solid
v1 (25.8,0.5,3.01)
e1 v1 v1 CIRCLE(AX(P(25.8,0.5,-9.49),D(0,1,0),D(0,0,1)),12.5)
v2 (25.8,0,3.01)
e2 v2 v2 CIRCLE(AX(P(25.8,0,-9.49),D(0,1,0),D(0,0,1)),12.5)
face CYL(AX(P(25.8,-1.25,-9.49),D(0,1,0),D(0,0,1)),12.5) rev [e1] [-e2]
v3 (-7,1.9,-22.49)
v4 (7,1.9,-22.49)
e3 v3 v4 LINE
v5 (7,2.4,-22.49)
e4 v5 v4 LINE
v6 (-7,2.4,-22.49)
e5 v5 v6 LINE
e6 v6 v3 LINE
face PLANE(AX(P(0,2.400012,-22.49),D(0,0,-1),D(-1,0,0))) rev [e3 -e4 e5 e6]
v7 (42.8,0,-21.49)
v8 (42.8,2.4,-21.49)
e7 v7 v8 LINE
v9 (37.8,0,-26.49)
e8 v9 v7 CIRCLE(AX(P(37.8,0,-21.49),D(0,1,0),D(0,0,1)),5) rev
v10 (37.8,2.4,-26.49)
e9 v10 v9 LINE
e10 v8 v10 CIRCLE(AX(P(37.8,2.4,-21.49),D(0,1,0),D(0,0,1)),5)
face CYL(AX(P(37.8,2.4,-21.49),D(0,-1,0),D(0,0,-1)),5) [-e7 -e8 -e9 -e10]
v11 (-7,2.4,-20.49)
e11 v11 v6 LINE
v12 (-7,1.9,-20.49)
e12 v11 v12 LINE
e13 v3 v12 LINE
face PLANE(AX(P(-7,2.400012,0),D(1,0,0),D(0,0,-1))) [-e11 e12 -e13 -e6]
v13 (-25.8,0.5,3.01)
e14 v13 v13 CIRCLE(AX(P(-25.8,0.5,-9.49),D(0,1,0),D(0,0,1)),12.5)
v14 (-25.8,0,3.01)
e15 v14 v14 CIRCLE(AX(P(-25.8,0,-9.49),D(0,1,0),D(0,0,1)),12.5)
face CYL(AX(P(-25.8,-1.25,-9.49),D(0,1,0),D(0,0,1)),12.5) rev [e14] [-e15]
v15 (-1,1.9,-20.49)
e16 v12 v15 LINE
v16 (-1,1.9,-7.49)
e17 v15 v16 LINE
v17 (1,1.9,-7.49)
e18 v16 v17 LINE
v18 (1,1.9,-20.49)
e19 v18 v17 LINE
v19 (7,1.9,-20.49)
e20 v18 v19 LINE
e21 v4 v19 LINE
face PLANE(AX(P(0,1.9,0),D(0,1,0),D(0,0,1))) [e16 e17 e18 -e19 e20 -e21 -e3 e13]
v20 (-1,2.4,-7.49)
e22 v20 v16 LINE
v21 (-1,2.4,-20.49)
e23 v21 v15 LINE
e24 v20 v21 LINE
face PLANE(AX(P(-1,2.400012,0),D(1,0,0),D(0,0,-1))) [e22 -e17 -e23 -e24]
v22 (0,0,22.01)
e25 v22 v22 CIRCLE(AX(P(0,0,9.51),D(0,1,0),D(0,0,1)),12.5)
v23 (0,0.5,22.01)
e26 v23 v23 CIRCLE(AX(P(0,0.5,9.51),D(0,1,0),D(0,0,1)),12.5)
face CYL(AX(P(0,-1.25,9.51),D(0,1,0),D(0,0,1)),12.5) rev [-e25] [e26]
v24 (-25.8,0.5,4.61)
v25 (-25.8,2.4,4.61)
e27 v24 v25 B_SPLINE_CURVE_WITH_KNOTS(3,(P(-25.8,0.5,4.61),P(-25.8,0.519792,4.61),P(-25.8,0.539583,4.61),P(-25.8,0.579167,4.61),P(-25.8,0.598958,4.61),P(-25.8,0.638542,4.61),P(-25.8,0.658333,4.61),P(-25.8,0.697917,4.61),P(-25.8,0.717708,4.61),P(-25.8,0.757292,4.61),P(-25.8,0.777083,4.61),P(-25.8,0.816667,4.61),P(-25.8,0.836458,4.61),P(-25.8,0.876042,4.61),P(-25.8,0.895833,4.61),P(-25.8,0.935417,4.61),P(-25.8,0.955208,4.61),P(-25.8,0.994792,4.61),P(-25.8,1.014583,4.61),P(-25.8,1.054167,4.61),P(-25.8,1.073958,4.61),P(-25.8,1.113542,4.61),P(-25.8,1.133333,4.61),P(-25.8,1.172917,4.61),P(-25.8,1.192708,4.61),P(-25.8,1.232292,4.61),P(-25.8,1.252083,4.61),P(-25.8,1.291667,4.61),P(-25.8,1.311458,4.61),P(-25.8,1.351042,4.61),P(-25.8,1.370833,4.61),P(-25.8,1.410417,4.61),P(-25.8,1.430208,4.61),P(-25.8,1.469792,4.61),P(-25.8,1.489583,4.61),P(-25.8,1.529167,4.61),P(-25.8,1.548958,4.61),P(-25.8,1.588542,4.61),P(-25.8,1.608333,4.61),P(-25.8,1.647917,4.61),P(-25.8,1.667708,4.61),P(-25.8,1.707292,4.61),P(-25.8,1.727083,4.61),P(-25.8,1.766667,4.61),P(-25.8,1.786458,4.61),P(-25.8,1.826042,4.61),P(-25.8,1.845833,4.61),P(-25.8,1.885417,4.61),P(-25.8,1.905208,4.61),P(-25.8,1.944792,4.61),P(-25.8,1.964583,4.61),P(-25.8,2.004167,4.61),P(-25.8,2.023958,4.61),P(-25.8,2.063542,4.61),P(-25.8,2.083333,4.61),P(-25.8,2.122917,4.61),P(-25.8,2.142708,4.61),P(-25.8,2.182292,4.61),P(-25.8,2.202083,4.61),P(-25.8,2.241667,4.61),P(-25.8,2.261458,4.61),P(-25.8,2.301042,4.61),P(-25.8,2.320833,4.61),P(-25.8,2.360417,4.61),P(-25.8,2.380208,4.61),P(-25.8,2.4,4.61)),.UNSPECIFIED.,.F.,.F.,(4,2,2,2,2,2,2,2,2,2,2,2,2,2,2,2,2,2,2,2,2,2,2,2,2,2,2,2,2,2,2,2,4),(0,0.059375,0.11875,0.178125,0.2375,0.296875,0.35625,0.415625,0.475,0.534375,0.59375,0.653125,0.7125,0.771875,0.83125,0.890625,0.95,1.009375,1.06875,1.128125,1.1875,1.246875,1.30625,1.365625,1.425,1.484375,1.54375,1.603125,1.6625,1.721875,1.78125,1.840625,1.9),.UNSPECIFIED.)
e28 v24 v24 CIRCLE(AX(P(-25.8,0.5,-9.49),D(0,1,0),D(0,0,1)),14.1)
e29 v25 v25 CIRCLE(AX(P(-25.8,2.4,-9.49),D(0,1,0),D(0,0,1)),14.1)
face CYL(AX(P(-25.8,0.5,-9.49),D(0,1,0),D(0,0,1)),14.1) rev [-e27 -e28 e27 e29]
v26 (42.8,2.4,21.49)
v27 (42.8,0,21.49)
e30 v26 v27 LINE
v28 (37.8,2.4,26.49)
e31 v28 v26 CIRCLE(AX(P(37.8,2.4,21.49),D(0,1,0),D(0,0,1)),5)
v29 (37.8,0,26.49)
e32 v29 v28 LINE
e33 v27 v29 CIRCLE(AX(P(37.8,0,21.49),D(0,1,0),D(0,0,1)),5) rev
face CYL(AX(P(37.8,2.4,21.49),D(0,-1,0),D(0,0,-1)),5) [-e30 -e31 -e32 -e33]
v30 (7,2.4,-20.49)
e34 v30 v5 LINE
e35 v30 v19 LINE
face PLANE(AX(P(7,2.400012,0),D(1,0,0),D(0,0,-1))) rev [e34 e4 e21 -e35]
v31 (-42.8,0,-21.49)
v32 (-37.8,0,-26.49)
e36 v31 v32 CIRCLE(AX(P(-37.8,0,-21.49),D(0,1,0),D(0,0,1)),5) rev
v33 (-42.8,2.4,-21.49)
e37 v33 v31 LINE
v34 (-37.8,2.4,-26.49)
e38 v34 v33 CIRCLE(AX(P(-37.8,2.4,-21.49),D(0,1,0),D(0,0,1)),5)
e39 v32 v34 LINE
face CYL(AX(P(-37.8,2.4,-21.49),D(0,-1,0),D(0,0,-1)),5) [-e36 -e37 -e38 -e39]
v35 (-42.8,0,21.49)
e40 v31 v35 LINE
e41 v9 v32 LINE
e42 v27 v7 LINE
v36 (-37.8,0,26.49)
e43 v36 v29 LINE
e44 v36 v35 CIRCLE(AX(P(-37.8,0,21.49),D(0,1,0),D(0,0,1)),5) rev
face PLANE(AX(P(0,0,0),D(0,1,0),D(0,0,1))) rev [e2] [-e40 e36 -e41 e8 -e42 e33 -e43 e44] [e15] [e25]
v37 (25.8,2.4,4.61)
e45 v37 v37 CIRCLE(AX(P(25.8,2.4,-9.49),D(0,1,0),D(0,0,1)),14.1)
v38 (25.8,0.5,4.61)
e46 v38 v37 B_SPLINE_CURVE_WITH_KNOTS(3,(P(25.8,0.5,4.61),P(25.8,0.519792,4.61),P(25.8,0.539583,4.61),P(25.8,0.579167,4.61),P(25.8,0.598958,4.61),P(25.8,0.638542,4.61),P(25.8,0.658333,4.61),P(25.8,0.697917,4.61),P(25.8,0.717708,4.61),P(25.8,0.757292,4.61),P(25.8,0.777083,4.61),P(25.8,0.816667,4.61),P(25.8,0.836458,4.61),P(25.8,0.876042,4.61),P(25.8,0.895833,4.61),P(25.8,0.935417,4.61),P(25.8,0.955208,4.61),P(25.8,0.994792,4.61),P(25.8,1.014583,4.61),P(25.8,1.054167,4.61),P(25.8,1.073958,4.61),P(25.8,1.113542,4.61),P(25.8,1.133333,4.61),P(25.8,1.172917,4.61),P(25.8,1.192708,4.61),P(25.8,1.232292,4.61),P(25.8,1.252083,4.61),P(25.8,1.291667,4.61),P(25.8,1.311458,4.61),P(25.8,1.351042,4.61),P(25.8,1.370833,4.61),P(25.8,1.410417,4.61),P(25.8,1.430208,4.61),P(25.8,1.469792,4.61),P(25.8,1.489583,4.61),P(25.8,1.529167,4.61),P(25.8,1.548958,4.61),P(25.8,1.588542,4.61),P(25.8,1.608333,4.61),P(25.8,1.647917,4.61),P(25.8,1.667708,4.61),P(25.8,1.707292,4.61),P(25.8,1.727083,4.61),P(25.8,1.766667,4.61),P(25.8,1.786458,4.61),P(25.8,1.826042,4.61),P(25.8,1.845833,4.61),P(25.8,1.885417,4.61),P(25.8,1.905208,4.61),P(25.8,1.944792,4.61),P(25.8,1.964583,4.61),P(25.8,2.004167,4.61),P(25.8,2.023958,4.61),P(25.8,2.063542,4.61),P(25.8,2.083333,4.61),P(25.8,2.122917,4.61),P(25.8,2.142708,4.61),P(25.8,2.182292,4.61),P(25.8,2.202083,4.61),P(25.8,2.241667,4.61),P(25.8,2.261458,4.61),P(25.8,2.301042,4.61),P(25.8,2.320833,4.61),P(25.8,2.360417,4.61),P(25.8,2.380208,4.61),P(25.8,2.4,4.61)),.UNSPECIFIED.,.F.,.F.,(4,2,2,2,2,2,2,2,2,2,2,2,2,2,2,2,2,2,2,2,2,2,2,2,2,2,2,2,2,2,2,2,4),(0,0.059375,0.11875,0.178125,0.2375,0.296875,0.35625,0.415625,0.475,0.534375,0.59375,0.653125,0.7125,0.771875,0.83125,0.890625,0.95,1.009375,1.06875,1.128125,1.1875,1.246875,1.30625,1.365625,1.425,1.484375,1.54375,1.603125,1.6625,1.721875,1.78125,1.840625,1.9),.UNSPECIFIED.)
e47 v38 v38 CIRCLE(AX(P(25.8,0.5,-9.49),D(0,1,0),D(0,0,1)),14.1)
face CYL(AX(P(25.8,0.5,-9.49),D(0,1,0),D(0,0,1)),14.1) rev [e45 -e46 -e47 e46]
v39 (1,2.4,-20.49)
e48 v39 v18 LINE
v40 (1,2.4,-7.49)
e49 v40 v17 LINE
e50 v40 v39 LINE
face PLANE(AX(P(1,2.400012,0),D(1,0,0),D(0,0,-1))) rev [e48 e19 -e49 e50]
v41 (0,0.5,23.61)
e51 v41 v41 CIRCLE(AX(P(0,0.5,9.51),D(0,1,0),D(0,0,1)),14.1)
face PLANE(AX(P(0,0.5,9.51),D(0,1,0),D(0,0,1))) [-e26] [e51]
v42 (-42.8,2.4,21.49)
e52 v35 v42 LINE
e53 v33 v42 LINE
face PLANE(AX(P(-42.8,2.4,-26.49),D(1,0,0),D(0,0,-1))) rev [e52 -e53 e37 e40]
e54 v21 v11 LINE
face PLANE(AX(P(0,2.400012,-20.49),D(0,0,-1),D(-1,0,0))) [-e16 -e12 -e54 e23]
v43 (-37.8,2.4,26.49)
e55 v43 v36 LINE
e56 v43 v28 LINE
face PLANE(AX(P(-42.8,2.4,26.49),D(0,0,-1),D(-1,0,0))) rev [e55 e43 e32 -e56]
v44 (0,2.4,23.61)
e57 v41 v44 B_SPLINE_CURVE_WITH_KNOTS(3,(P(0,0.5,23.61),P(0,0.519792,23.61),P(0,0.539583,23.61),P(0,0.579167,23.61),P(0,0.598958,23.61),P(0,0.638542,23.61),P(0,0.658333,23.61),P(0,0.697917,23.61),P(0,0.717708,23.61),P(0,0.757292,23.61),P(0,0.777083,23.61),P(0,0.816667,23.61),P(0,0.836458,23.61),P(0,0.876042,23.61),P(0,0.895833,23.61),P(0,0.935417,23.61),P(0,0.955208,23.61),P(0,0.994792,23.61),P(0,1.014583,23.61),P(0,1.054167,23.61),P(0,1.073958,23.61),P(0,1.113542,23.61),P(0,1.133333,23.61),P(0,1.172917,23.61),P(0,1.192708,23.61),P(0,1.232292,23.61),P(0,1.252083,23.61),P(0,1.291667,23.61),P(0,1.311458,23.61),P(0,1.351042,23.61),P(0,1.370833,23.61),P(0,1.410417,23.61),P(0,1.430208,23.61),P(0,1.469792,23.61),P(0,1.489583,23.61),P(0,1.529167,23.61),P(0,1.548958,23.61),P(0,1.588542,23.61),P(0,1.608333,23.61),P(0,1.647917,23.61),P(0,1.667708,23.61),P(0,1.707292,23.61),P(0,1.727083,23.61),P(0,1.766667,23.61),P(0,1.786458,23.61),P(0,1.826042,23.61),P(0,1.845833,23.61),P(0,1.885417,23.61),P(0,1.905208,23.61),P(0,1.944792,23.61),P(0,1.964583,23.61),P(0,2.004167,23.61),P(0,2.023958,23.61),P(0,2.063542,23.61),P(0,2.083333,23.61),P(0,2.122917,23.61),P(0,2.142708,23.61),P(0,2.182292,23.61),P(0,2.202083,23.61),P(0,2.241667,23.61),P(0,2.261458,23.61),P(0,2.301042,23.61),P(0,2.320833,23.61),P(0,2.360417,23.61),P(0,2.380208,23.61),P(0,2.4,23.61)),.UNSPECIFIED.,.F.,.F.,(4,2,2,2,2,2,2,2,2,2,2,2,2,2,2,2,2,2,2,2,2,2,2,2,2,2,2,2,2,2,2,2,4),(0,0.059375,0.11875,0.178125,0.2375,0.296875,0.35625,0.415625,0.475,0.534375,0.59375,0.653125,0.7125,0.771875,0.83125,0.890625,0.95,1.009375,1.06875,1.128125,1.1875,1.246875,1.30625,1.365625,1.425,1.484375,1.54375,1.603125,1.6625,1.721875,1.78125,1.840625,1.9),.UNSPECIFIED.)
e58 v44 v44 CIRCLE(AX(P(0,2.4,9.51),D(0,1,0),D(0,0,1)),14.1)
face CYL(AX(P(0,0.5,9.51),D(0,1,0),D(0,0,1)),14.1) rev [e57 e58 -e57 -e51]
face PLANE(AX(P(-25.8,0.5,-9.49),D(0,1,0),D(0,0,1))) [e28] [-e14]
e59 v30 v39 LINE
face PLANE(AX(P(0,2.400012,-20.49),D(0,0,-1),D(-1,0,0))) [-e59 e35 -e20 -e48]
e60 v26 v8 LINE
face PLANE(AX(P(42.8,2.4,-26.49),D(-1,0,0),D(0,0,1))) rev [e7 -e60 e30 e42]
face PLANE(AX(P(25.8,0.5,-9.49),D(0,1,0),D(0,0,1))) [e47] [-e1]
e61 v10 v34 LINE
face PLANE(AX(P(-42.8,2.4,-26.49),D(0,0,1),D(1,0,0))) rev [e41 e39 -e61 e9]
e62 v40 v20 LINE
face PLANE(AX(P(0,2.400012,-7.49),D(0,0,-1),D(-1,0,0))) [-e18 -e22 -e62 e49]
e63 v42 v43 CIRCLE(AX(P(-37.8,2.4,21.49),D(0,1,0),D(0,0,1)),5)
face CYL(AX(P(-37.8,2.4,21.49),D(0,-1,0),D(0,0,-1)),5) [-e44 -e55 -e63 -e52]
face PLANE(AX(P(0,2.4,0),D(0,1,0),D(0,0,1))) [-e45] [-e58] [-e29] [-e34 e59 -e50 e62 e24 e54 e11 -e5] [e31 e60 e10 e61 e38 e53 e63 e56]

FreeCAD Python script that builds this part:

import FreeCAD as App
import Part
import Sketcher


def edges_at(feature, points):
    """Names of the edges that pass closest to the given points."""
    edges = feature.Shape.Edges
    near = lambda p: min(range(len(edges)), key=lambda i: edges[i].distToShape(Part.Vertex(*p))[0])
    return sorted({f"Edge{near(p) + 1}" for p in points})

doc = App.newDocument("Part")
body = doc.addObject("PartDesign::Body", "Body")

# Sketch on XZ plane
sketch1 = doc.addObject("Sketcher::SketchObject", "Sketch")
body.addObject(sketch1)
sketch1.AttachmentSupport = (doc.XZ_Plane, [""])
sketch1.MapMode = "FlatFace"
sketch1.addGeometry(Part.LineSegment(App.Vector(-43, -26, 0), App.Vector(-43, 26, 0)), False)
sketch1.addGeometry(Part.LineSegment(App.Vector(-43, 26, 0), App.Vector(43, 26, 0)), False)
sketch1.addGeometry(Part.LineSegment(App.Vector(43, 26, 0), App.Vector(43, -26, 0)), False)
sketch1.addGeometry(Part.LineSegment(App.Vector(43, -26, 0), App.Vector(-43, -26, 0)), False)
sketch1.addConstraint(Sketcher.Constraint("Coincident", 0, 2, 1, 1))
sketch1.addConstraint(Sketcher.Constraint("Coincident", 1, 2, 2, 1))
sketch1.addConstraint(Sketcher.Constraint("Coincident", 2, 2, 3, 1))
sketch1.addConstraint(Sketcher.Constraint("Coincident", 3, 2, 0, 1))
sketch1.addConstraint(Sketcher.Constraint("Vertical", 0))
sketch1.addConstraint(Sketcher.Constraint("Horizontal", 1))
sketch1.addConstraint(Sketcher.Constraint("Vertical", 2))
sketch1.addConstraint(Sketcher.Constraint("Horizontal", 3))
sketch1.addConstraint(Sketcher.Constraint("Symmetric", 0, 2, 2, 2, -1, 1))
sketch1.addConstraint(Sketcher.Constraint("DistanceX", 1, 1, 1, 2, 85.6))
sketch1.addConstraint(Sketcher.Constraint("DistanceY", 0, 1, 0, 2, 52.98))
pad1 = doc.addObject("PartDesign::Pad", "Pad")
body.addObject(pad1)
pad1.Profile = sketch1
pad1.Length = 2.4
pad1.Reversed = True

# Sketch on XZ plane
sketch2 = doc.addObject("Sketcher::SketchObject", "Sketch001")
body.addObject(sketch2)
sketch2.AttachmentSupport = (doc.XZ_Plane, [""])
sketch2.MapMode = "FlatFace"
sketch2.AttachmentOffset = App.Placement(App.Vector(0, 0, -2.4), App.Rotation())
sketch2.addGeometry(Part.Circle(App.Vector(-26, -9, 0), App.Vector(0, 0, 1), 14), False)
sketch2.addGeometry(Part.Circle(App.Vector(0, 10, 0), App.Vector(0, 0, 1), 14), False)
sketch2.addGeometry(Part.Circle(App.Vector(26, -9, 0), App.Vector(0, 0, 1), 14), False)
sketch2.addConstraint(Sketcher.Constraint("Equal", 0, 1))
sketch2.addConstraint(Sketcher.Constraint("Equal", 1, 2))
sketch2.addConstraint(Sketcher.Constraint("Symmetric", 0, 3, 2, 3, -2))
sketch2.addConstraint(Sketcher.Constraint("PointOnObject", 1, 3, -2))
sketch2.addConstraint(Sketcher.Constraint("Diameter", 0, 28.2))
sketch2.addConstraint(Sketcher.Constraint("DistanceY", 0, 3, 1, 3, 19.0))
sketch2.addConstraint(Sketcher.Constraint("DistanceX", 0, 3, -1, 1, 25.8))
sketch2.addConstraint(Sketcher.Constraint("DistanceY", 0, 3, -1, 1, 9.49))
pocket1 = doc.addObject("PartDesign::Pocket", "Pocket")
body.addObject(pocket1)
pocket1.Profile = sketch2
pocket1.Length = 1.9
pocket1.Reversed = True

# Sketch on XZ plane
sketch3 = doc.addObject("Sketcher::SketchObject", "Sketch002")
body.addObject(sketch3)
sketch3.AttachmentSupport = (doc.XZ_Plane, [""])
sketch3.MapMode = "FlatFace"
sketch3.AttachmentOffset = App.Placement(App.Vector(0, 0, -0.5), App.Rotation())
sketch3.addGeometry(Part.Circle(App.Vector(-26, -9, 0), App.Vector(0, 0, 1), 12), False)
sketch3.addGeometry(Part.Circle(App.Vector(0, 10, 0), App.Vector(0, 0, 1), 12), False)
sketch3.addGeometry(Part.Circle(App.Vector(26, -9, 0), App.Vector(0, 0, 1), 12), False)
sketch3.addConstraint(Sketcher.Constraint("Equal", 0, 1))
sketch3.addConstraint(Sketcher.Constraint("Equal", 1, 2))
sketch3.addConstraint(Sketcher.Constraint("Symmetric", 0, 3, 2, 3, -2))
sketch3.addConstraint(Sketcher.Constraint("PointOnObject", 1, 3, -2))
sketch3.addConstraint(Sketcher.Constraint("Diameter", 0, 25.0))
sketch3.addConstraint(Sketcher.Constraint("DistanceY", 0, 3, 1, 3, 19.0))
sketch3.addConstraint(Sketcher.Constraint("DistanceX", 0, 3, -1, 1, 25.8))
sketch3.addConstraint(Sketcher.Constraint("DistanceY", 0, 3, -1, 1, 9.49))
pocket2 = doc.addObject("PartDesign::Pocket", "Pocket001")
body.addObject(pocket2)
pocket2.Profile = sketch3
pocket2.Length = 1.75
pocket2.Reversed = True
doc.recompute()

fillet = doc.addObject("PartDesign::Fillet", "Fillet")
body.addObject(fillet)
fillet.Base = (pocket2, edges_at(pocket2, [
    (42.8, 1.2, 26.49),
    (-42.8, 1.2, 26.49),
    (-42.8, 1.2, -26.49),
    (42.8, 1.2, -26.49),
]))
fillet.Radius = 5

# Sketch on XZ plane
sketch4 = doc.addObject("Sketcher::SketchObject", "Sketch003")
body.addObject(sketch4)
sketch4.AttachmentSupport = (doc.XZ_Plane, [""])
sketch4.MapMode = "FlatFace"
sketch4.AttachmentOffset = App.Placement(App.Vector(0, 0, -2.4), App.Rotation())
sketch4.addGeometry(Part.LineSegment(App.Vector(-7, -20.5, 0), App.Vector(-1, -20.5, 0)), False)
sketch4.addGeometry(Part.LineSegment(App.Vector(-1, -20.5, 0), App.Vector(-1, -7.5, 0)), False)
sketch4.addGeometry(Part.LineSegment(App.Vector(-1, -7.5, 0), App.Vector(1, -7.5, 0)), False)
sketch4.addGeometry(Part.LineSegment(App.Vector(1, -7.5, 0), App.Vector(1, -20.5, 0)), False)
sketch4.addGeometry(Part.LineSegment(App.Vector(1, -20.5, 0), App.Vector(7, -20.5, 0)), False)
sketch4.addGeometry(Part.LineSegment(App.Vector(7, -20.5, 0), App.Vector(7, -22.5, 0)), False)
sketch4.addGeometry(Part.LineSegment(App.Vector(7, -22.5, 0), App.Vector(-7, -22.5, 0)), False)
sketch4.addGeometry(Part.LineSegment(App.Vector(-7, -22.5, 0), App.Vector(-7, -20.5, 0)), False)
sketch4.addConstraint(Sketcher.Constraint("Coincident", 0, 2, 1, 1))
sketch4.addConstraint(Sketcher.Constraint("Coincident", 1, 2, 2, 1))
sketch4.addConstraint(Sketcher.Constraint("Coincident", 2, 2, 3, 1))
sketch4.addConstraint(Sketcher.Constraint("Coincident", 3, 2, 4, 1))
sketch4.addConstraint(Sketcher.Constraint("Coincident", 4, 2, 5, 1))
sketch4.addConstraint(Sketcher.Constraint("Coincident", 5, 2, 6, 1))
sketch4.addConstraint(Sketcher.Constraint("Coincident", 6, 2, 7, 1))
sketch4.addConstraint(Sketcher.Constraint("Coincident", 7, 2, 0, 1))
sketch4.addConstraint(Sketcher.Constraint("Horizontal", 0))
sketch4.addConstraint(Sketcher.Constraint("Vertical", 1))
sketch4.addConstraint(Sketcher.Constraint("Horizontal", 2))
sketch4.addConstraint(Sketcher.Constraint("Vertical", 3))
sketch4.addConstraint(Sketcher.Constraint("Horizontal", 4))
sketch4.addConstraint(Sketcher.Constraint("Vertical", 5))
sketch4.addConstraint(Sketcher.Constraint("Horizontal", 6))
sketch4.addConstraint(Sketcher.Constraint("Vertical", 7))
sketch4.addConstraint(Sketcher.Constraint("Symmetric", 0, 2, 3, 2, -2))
sketch4.addConstraint(Sketcher.Constraint("Equal", 0, 4))
sketch4.addConstraint(Sketcher.Constraint("Equal", 2, 5))
sketch4.addConstraint(Sketcher.Constraint("DistanceX", 0, 1, 0, 2, 6.0))
sketch4.addConstraint(Sketcher.Constraint("DistanceX", 2, 1, 2, 2, 2.0))
sketch4.addConstraint(Sketcher.Constraint("DistanceY", 1, 1, 1, 2, 13.0))
sketch4.addConstraint(Sketcher.Constraint("DistanceY", 0, 2, -1, 1, 20.49))
pocket3 = doc.addObject("PartDesign::Pocket", "Pocket002")
body.addObject(pocket3)
pocket3.Profile = sketch4
pocket3.Type = "TwoLengths"
pocket3.Length = 51.391667
pocket3.Length2 = 0.5

doc.recompute()
